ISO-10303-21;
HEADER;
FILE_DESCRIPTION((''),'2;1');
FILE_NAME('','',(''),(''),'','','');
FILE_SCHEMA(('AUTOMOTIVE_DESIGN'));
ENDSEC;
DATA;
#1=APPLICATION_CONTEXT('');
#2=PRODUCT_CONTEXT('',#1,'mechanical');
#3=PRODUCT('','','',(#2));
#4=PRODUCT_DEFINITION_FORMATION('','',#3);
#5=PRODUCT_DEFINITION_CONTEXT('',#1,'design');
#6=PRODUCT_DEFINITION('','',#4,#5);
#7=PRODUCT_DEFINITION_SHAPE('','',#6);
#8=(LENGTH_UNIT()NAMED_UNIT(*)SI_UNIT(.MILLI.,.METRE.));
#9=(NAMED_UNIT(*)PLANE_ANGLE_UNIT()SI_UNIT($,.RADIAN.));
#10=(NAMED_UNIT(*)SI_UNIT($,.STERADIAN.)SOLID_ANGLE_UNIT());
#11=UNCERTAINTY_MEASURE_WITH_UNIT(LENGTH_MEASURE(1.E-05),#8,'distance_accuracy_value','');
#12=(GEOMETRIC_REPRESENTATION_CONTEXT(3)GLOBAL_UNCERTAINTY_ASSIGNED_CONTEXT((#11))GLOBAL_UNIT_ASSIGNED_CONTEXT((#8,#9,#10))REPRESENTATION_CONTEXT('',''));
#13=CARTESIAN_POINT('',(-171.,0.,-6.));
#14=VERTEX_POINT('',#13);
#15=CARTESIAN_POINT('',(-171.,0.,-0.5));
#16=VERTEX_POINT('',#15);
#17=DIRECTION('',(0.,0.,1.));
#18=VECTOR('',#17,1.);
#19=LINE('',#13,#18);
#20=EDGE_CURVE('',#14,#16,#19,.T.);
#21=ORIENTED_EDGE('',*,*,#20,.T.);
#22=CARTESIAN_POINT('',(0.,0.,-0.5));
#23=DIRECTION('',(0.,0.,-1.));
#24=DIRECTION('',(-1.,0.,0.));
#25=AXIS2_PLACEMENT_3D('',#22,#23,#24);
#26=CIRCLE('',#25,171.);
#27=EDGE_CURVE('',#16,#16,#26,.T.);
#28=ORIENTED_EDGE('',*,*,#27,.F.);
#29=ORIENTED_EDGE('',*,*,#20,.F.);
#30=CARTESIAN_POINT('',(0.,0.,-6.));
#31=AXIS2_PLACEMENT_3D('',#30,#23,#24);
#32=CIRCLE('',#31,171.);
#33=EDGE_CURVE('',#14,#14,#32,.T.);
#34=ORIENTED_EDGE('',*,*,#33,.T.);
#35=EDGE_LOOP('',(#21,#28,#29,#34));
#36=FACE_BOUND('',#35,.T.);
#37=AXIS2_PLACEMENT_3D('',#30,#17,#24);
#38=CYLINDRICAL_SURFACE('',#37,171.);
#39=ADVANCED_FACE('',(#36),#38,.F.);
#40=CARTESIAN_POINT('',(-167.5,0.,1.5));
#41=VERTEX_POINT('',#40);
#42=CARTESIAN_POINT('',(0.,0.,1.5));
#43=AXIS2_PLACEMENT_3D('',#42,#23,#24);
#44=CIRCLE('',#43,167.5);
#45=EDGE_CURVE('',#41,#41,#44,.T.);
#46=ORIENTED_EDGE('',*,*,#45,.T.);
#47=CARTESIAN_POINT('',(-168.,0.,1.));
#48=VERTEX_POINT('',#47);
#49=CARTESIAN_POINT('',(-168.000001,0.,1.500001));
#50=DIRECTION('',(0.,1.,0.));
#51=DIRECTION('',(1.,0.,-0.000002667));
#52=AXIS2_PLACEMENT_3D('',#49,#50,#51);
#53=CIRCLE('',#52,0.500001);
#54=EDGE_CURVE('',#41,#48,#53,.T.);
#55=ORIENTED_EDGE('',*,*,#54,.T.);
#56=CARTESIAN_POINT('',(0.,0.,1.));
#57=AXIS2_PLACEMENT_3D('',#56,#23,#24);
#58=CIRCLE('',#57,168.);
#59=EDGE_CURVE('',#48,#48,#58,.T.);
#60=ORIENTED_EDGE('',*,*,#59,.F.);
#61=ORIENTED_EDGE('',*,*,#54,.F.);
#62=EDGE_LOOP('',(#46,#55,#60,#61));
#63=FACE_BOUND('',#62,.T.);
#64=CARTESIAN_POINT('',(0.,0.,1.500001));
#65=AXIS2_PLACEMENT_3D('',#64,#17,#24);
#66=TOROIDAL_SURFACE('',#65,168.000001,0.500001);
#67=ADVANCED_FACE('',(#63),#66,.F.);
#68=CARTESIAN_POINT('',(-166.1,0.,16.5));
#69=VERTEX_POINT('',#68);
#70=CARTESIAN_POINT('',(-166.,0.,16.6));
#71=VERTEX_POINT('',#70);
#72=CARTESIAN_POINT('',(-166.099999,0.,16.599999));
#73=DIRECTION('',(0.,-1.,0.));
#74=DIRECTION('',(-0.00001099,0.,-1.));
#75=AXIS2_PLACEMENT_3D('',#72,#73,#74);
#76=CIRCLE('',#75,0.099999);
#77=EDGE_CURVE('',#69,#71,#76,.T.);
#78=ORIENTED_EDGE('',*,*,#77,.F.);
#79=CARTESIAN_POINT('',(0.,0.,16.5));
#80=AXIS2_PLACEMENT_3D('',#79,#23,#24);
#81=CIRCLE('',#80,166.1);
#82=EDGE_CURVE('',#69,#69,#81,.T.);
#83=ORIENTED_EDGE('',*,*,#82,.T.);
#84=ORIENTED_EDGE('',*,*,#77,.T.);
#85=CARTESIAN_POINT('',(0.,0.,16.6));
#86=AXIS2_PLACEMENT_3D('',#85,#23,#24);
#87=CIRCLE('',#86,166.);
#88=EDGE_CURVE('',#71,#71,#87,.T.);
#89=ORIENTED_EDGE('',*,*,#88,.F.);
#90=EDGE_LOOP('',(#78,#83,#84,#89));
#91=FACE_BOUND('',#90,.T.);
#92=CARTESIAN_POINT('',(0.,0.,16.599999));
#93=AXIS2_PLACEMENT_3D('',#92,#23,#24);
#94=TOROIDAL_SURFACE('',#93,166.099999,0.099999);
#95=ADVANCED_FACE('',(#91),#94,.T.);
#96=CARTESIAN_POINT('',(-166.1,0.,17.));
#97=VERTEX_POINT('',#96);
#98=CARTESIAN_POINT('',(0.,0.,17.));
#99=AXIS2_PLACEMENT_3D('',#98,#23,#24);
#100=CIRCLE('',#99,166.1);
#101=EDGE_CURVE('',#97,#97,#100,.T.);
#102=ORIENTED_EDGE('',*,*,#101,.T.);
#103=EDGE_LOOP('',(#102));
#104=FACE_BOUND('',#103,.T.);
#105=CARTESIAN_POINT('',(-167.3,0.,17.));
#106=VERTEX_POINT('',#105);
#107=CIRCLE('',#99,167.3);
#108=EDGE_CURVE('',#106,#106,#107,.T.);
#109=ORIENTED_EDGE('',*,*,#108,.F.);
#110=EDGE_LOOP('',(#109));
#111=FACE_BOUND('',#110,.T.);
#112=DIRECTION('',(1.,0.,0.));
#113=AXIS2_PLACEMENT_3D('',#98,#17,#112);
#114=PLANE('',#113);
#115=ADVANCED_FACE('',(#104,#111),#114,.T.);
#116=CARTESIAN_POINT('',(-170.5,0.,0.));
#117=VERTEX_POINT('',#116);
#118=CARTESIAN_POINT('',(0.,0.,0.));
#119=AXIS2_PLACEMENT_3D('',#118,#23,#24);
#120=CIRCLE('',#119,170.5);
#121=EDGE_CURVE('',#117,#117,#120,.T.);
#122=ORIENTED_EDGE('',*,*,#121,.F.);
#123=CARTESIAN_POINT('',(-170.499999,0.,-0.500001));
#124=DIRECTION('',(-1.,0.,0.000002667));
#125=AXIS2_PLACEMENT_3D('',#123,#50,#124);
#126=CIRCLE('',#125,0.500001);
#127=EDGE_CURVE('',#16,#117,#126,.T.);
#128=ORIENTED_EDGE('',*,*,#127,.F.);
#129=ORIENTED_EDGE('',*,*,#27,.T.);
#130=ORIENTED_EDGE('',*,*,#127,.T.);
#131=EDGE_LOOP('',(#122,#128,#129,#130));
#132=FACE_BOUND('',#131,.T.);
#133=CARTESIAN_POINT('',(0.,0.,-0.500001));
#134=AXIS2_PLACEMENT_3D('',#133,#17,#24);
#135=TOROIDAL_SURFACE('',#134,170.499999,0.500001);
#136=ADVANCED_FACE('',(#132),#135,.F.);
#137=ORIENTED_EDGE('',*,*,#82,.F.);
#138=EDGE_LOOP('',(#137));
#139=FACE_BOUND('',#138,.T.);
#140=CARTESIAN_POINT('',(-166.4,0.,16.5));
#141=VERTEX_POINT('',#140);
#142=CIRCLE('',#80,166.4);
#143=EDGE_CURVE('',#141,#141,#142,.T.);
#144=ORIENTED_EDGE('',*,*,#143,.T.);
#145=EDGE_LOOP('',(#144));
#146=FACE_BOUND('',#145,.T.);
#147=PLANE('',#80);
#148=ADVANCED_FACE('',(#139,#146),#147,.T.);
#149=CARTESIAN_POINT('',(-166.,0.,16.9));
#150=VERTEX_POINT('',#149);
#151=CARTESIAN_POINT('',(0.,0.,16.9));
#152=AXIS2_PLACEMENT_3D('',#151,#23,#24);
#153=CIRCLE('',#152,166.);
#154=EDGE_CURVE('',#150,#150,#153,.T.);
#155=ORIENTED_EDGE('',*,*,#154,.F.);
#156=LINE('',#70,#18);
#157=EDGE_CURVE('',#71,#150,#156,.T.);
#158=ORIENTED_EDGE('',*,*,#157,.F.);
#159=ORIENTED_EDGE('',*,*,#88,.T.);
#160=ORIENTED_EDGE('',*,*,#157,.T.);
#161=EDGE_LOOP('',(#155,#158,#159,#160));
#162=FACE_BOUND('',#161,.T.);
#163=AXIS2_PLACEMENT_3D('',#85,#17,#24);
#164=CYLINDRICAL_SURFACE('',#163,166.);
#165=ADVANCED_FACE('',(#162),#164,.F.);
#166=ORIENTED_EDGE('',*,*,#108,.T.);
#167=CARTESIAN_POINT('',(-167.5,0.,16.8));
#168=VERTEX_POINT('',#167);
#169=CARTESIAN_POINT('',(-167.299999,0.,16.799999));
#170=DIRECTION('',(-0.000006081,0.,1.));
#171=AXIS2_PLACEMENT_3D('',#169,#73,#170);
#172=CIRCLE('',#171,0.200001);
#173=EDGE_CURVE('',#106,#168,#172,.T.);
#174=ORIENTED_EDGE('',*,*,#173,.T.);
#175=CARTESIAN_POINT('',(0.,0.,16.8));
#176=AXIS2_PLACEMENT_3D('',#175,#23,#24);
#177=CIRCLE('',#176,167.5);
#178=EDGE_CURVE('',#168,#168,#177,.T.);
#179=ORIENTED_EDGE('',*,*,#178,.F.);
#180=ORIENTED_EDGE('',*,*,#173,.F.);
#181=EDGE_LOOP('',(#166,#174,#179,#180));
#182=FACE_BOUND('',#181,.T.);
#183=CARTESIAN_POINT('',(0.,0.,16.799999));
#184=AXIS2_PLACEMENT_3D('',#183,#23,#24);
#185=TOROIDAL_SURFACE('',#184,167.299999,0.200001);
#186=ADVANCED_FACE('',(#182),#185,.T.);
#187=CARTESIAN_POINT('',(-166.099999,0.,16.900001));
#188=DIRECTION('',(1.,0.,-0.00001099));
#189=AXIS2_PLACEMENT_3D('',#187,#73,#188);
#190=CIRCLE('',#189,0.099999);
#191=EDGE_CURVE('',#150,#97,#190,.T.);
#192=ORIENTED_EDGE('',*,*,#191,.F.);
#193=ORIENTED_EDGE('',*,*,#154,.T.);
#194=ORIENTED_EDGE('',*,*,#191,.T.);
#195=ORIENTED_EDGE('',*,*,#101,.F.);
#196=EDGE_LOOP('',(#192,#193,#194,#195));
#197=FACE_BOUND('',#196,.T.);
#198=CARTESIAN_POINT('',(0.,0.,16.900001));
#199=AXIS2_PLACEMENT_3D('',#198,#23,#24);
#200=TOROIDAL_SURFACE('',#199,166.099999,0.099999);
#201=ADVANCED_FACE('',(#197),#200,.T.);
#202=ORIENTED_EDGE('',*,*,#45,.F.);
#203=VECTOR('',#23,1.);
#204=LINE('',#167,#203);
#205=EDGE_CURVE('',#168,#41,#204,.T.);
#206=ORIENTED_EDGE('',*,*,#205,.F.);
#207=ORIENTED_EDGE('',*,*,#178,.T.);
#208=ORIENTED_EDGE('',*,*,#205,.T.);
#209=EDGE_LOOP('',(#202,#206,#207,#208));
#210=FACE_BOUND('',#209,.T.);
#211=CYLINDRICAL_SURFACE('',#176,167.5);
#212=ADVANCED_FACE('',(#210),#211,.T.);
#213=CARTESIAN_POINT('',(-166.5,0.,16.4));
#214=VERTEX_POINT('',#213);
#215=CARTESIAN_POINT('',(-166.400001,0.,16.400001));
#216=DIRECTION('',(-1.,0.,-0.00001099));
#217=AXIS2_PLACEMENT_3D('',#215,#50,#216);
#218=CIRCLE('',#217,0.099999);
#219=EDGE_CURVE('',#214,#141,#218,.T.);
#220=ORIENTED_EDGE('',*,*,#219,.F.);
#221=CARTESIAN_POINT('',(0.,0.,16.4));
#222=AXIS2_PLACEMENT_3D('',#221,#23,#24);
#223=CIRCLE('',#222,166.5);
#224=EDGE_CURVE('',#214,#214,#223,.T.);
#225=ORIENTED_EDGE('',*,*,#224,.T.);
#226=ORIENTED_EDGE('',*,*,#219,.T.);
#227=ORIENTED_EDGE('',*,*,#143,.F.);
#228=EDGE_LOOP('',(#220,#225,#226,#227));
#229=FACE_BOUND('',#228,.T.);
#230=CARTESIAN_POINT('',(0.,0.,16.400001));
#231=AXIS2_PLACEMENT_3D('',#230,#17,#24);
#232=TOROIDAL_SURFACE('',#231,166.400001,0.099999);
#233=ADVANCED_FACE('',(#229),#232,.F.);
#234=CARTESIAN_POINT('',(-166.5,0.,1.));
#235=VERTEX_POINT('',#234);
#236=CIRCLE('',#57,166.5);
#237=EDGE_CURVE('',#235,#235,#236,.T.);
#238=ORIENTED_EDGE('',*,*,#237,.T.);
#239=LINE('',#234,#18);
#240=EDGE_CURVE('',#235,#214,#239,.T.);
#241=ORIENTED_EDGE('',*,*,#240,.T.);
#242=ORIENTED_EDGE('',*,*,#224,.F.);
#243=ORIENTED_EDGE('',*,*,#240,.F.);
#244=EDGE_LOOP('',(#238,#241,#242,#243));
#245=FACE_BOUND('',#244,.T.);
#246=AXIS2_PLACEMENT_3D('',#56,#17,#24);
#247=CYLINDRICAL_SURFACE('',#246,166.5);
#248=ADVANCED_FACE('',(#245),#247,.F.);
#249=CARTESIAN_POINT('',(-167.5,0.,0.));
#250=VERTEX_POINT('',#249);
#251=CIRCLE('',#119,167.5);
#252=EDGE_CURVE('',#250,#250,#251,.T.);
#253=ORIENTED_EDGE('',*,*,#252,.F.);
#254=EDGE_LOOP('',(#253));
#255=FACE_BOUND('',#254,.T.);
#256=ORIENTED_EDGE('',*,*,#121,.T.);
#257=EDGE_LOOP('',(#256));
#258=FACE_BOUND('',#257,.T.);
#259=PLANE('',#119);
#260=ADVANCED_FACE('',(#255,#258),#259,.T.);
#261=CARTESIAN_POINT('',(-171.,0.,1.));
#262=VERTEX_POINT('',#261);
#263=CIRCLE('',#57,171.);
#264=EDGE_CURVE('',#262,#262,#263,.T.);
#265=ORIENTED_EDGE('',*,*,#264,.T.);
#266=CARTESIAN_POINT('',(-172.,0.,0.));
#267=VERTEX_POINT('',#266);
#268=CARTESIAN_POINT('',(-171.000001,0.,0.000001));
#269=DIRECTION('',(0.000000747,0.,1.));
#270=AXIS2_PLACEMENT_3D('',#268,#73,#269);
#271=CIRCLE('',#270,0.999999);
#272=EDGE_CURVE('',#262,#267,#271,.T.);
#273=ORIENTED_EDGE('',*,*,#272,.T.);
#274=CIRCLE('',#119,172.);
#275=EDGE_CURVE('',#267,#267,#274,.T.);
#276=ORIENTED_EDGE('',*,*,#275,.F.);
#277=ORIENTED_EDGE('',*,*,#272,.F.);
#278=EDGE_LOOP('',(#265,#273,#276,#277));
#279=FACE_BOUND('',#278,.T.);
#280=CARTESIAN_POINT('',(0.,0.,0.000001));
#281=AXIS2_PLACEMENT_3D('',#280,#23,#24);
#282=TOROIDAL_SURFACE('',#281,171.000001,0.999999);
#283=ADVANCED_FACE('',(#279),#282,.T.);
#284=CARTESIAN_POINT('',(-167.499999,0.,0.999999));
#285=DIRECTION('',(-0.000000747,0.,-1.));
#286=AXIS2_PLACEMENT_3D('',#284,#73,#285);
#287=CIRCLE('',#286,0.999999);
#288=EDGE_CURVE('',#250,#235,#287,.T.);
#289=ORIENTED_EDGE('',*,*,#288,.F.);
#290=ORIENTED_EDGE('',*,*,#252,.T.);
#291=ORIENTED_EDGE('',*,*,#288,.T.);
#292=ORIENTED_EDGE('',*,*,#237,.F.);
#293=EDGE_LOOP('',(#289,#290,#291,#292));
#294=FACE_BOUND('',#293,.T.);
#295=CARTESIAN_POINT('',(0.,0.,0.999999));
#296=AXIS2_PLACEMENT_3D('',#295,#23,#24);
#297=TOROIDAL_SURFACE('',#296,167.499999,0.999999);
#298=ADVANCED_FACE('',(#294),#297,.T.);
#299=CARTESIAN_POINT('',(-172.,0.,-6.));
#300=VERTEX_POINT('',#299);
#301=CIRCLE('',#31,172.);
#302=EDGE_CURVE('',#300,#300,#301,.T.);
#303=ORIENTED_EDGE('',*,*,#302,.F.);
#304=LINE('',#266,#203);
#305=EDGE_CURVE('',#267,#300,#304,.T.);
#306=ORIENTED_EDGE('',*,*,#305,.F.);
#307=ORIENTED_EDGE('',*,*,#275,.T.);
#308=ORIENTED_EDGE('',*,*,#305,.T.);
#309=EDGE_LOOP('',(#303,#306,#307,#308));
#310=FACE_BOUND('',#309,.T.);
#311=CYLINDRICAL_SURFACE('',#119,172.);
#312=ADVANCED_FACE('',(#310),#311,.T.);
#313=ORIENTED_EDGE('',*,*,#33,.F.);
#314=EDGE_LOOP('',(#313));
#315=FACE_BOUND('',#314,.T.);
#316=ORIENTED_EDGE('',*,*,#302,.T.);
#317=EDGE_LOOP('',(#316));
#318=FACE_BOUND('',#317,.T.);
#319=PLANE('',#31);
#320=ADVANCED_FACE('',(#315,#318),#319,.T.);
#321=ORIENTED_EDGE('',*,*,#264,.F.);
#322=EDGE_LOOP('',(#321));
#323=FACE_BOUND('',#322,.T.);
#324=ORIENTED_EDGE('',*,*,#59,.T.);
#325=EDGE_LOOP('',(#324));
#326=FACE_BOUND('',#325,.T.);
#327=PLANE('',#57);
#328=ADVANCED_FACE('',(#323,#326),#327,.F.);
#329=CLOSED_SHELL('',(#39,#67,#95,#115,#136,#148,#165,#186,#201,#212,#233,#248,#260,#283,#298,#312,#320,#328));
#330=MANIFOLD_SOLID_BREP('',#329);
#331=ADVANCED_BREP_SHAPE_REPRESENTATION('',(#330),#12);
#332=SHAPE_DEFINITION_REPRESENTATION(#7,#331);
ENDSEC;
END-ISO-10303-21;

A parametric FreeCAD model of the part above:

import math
import FreeCAD as App
import Part
import Sketcher
from FreeCAD import Vector
Q = App.Units.Quantity

doc = App.newDocument("Part")
body = doc.addObject("PartDesign::Body", "Body")

# Sketch on XZ plane
sketch1 = doc.addObject("Sketcher::SketchObject", "Sketch")
body.addObject(sketch1)
sketch1.AttachmentSupport = (doc.XZ_Plane, [""])
sketch1.MapMode = "FlatFace"
sketch1.addGeometry(Part.LineSegment(Vector(-166.5, 1, 0), Vector(-166.5, 16.4, 0)), False)
sketch1.addGeometry(Part.ArcOfCircle(Part.Circle(Vector(-166.400001, 16.400001, 0), Vector(0, 0, 1), 0.099999), math.radians(89.99937), math.radians(180.00063)), False)
sketch1.addGeometry(Part.LineSegment(Vector(-166.4, 16.5, 0), Vector(-166.1, 16.5, 0)), False)
sketch1.addGeometry(Part.ArcOfCircle(Part.Circle(Vector(-166.099999, 16.599999, 0), Vector(0, 0, 1), 0.099999), math.radians(-90.00063), math.radians(0.00063)), False)
sketch1.addGeometry(Part.LineSegment(Vector(-166, 16.6, 0), Vector(-166, 16.9, 0)), False)
sketch1.addGeometry(Part.ArcOfCircle(Part.Circle(Vector(-166.099999, 16.900001, 0), Vector(0, 0, 1), 0.099999), math.radians(-0.00063), math.radians(90.00063)), False)
sketch1.addGeometry(Part.LineSegment(Vector(-166.1, 17, 0), Vector(-167.3, 17, 0)), False)
sketch1.addGeometry(Part.ArcOfCircle(Part.Circle(Vector(-167.299999, 16.799999, 0), Vector(0, 0, 1), 0.200001), math.radians(90.000348), math.radians(179.999652)), False)
sketch1.addGeometry(Part.LineSegment(Vector(-167.5, 16.8, 0), Vector(-167.5, 1.5, 0)), False)
sketch1.addGeometry(Part.ArcOfCircle(Part.Circle(Vector(-168.000001, 1.500001, 0), Vector(0, 0, 1), 0.500001), math.radians(-89.999847), math.radians(-0.000153)), False)
sketch1.addGeometry(Part.LineSegment(Vector(-168, 1, 0), Vector(-171, 1, 0)), False)
sketch1.addGeometry(Part.ArcOfCircle(Part.Circle(Vector(-171.000001, 0.000001, 0), Vector(0, 0, 1), 0.999999), math.radians(89.999957), math.radians(180.000043)), False)
sketch1.addGeometry(Part.LineSegment(Vector(-172, 0, 0), Vector(-172, -6, 0)), False)
sketch1.addGeometry(Part.LineSegment(Vector(-172, -6, 0), Vector(-171, -6, 0)), False)
sketch1.addGeometry(Part.LineSegment(Vector(-171, -6, 0), Vector(-171, -0.5, 0)), False)
sketch1.addGeometry(Part.ArcOfCircle(Part.Circle(Vector(-170.499999, -0.500001, 0), Vector(0, 0, 1), 0.500001), math.radians(90.000153), math.radians(179.999847)), False)
sketch1.addGeometry(Part.LineSegment(Vector(-170.5, 0, 0), Vector(-167.5, 0, 0)), False)
sketch1.addGeometry(Part.ArcOfCircle(Part.Circle(Vector(-167.499999, 0.999999, 0), Vector(0, 0, 1), 0.999999), math.radians(-90.000043), math.radians(0.000043)), False)
sketch1.addConstraint(Sketcher.Constraint("Coincident", 0, 2, 1, 2))
sketch1.addConstraint(Sketcher.Constraint("Coincident", 1, 1, 2, 1))
sketch1.addConstraint(Sketcher.Constraint("Coincident", 2, 2, 3, 1))
sketch1.addConstraint(Sketcher.Constraint("Coincident", 3, 2, 4, 1))
sketch1.addConstraint(Sketcher.Constraint("Coincident", 4, 2, 5, 1))
sketch1.addConstraint(Sketcher.Constraint("Coincident", 5, 2, 6, 1))
sketch1.addConstraint(Sketcher.Constraint("Coincident", 6, 2, 7, 1))
sketch1.addConstraint(Sketcher.Constraint("Coincident", 7, 2, 8, 1))
sketch1.addConstraint(Sketcher.Constraint("Coincident", 8, 2, 9, 2))
sketch1.addConstraint(Sketcher.Constraint("Coincident", 9, 1, 10, 1))
sketch1.addConstraint(Sketcher.Constraint("Tangent", 10, 2, 11, 1))
sketch1.addConstraint(Sketcher.Constraint("Tangent", 11, 2, 12, 1))
sketch1.addConstraint(Sketcher.Constraint("Coincident", 12, 2, 13, 1))
sketch1.addConstraint(Sketcher.Constraint("Coincident", 13, 2, 14, 1))
sketch1.addConstraint(Sketcher.Constraint("Coincident", 14, 2, 15, 2))
sketch1.addConstraint(Sketcher.Constraint("Coincident", 15, 1, 16, 1))
sketch1.addConstraint(Sketcher.Constraint("Tangent", 16, 2, 17, 1))
sketch1.addConstraint(Sketcher.Constraint("Tangent", 17, 2, 0, 1))
sketch1.addConstraint(Sketcher.Constraint("Vertical", 0))
sketch1.addConstraint(Sketcher.Constraint("Horizontal", 2))
sketch1.addConstraint(Sketcher.Constraint("Vertical", 4))
sketch1.addConstraint(Sketcher.Constraint("Horizontal", 6))
sketch1.addConstraint(Sketcher.Constraint("Vertical", 8))
sketch1.addConstraint(Sketcher.Constraint("Horizontal", 10))
sketch1.addConstraint(Sketcher.Constraint("Vertical", 12))
sketch1.addConstraint(Sketcher.Constraint("Horizontal", 13))
sketch1.addConstraint(Sketcher.Constraint("Vertical", 14))
sketch1.addConstraint(Sketcher.Constraint("Horizontal", 16))
sketch1.addConstraint(Sketcher.Constraint("Equal", 1, 3))
sketch1.addConstraint(Sketcher.Constraint("Equal", 3, 5))
sketch1.addConstraint(Sketcher.Constraint("Equal", 9, 15))
sketch1.addConstraint(Sketcher.Constraint("Equal", 11, 17))
sketch1.addConstraint(Sketcher.Constraint("PointOnObject", 11, 3, -1))
sketch1.addConstraint(Sketcher.Constraint("PointOnObject", 15, 1, -1))
sketch1.addConstraint(Sketcher.Constraint("Horizontal", 1, 3, 0, 2))
sketch1.addConstraint(Sketcher.Constraint("Horizontal", 5, 3, 4, 2))
sketch1.addConstraint(Sketcher.Constraint("Horizontal", 9, 3, 8, 2))
sketch1.addConstraint(Sketcher.Constraint("Horizontal", 15, 3, 14, 2))
sketch1.addConstraint(Sketcher.Constraint("Vertical", 5, 3, 2, 2))
sketch1.addConstraint(Sketcher.Constraint("Vertical", 2, 2, 5, 2))
sketch1.addConstraint(Sketcher.Constraint("Vertical", 7, 3, 6, 2))
sketch1.addConstraint(Sketcher.Constraint("Vertical", 17, 3, 7, 2))
sketch1.addConstraint(Sketcher.Constraint("Vertical", 10, 2, 13, 2))
sketch1.addConstraint(Sketcher.Constraint("Equal", 10, 16))
sketch1.addConstraint(Sketcher.Constraint("Equal", 2, 4))
sketch1.addConstraint(Sketcher.Constraint("Radius", 11, Q("0.999999 mm")))
sketch1.addConstraint(Sketcher.Constraint("Radius", 1, Q("0.099999 mm")))
sketch1.addConstraint(Sketcher.Constraint("Radius", 7, Q("0.200001 mm")))
sketch1.addConstraint(Sketcher.Constraint("Radius", 9, Q("0.500001 mm")))
sketch1.addConstraint(Sketcher.Constraint("DistanceX", 10, 2, 10, 1, Q("3 mm")))
sketch1.addConstraint(Sketcher.Constraint("DistanceY", 12, 2, 12, 1, Q("6 mm")))
sketch1.addConstraint(Sketcher.Constraint("DistanceX", 2, 1, 2, 2, Q("0.3 mm")))
sketch1.addConstraint(Sketcher.Constraint("DistanceX", 6, 2, 6, 1, Q("1.2 mm")))
sketch1.addConstraint(Sketcher.Constraint("DistanceY", 0, 1, 0, 2, Q("15.4 mm")))
sketch1.addConstraint(Sketcher.Constraint("DistanceY", 8, 2, 8, 1, Q("15.3 mm")))
sketch1.addConstraint(Sketcher.Constraint("DistanceX", 9, 3, -1, 1, Q("168.000001 mm")))
sketch1.addConstraint(Sketcher.Constraint("DistanceX", 11, 3, -1, 1, Q("171.000001 mm")))
sketch1.addConstraint(Sketcher.Constraint("DistanceY", -1, 1, 5, 2, Q("17 mm")))
revolution = doc.addObject("PartDesign::Revolution", "Revolution")
body.addObject(revolution)
revolution.Profile = sketch1
revolution.ReferenceAxis = (sketch1, ["V_Axis"])
revolution.Angle = 360

doc.recompute()
